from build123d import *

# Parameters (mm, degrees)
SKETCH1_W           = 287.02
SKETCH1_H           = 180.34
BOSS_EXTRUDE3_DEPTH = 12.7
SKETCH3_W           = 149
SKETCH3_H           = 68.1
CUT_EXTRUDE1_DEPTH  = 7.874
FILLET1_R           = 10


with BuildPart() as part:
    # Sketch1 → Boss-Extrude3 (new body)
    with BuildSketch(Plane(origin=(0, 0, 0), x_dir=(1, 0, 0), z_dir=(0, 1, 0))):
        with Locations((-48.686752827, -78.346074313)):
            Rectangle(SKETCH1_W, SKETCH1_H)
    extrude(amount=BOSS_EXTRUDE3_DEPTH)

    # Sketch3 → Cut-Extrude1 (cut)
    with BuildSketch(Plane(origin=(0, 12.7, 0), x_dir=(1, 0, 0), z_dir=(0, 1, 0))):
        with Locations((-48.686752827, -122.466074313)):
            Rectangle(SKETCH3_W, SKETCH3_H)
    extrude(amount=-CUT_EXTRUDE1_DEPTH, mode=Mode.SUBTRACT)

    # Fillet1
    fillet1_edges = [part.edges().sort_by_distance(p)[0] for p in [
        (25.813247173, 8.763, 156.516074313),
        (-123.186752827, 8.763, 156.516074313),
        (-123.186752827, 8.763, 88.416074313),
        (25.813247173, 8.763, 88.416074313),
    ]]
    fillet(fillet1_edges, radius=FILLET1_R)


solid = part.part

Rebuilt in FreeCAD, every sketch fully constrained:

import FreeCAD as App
import Part
import Sketcher
Q = App.Units.Quantity


def edges_at(feature, points):
    """Names of the edges that pass closest to the given points."""
    edges = feature.Shape.Edges
    near = lambda p: min(range(len(edges)), key=lambda i: edges[i].distToShape(Part.Vertex(*p))[0])
    return sorted({f"Edge{near(p) + 1}" for p in points})

doc = App.newDocument("Part")
body = doc.addObject("PartDesign::Body", "Body")

sketch1 = doc.addObject("Sketcher::SketchObject", "Sketch")
body.addObject(sketch1)
sketch1.AttachmentSupport = (doc.XZ_Plane, [""])
sketch1.MapMode = "FlatFace"
sketch1.addGeometry([
    Part.LineSegment(App.Vector(-192, -12, 0), App.Vector(-192, 169, 0)),
    Part.LineSegment(App.Vector(-192, 169, 0), App.Vector(95, 169, 0)),
    Part.LineSegment(App.Vector(95, 169, 0), App.Vector(95, -12, 0)),
    Part.LineSegment(App.Vector(95, -12, 0), App.Vector(-192, -12, 0)),
], False)
sketch1.addConstraint([
    Sketcher.Constraint("Coincident", 0, 2, 1, 1),
    Sketcher.Constraint("Coincident", 1, 2, 2, 1),
    Sketcher.Constraint("Coincident", 2, 2, 3, 1),
    Sketcher.Constraint("Coincident", 3, 2, 0, 1),
    Sketcher.Constraint("Vertical", 0),
    Sketcher.Constraint("Horizontal", 1),
    Sketcher.Constraint("Vertical", 2),
    Sketcher.Constraint("Horizontal", 3),
    Sketcher.Constraint("DistanceX", 1, 1, 1, 2, Q("11.3 in")),
    Sketcher.Constraint("DistanceY", 0, 1, 0, 2, Q("7.1 in")),
    Sketcher.Constraint("DistanceX", 0, 2, -1, 1, Q("192.196753 mm")),
    Sketcher.Constraint("DistanceY", -1, 1, 0, 2, Q("168.516074 mm")),
])
pad1 = doc.addObject("PartDesign::Pad", "Pad")
body.addObject(pad1)
pad1.Profile = sketch1
pad1.Length = Q("0.5 in")
pad1.Reversed = True

sketch2 = doc.addObject("Sketcher::SketchObject", "Sketch001")
body.addObject(sketch2)
sketch2.AttachmentSupport = (doc.XZ_Plane, [""])
sketch2.MapMode = "FlatFace"
sketch2.AttachmentOffset = App.Placement(App.Vector(0, 0, -0.5 * 25.4), App.Rotation())
sketch2.addGeometry([
    Part.LineSegment(App.Vector(-123, 88, 0), App.Vector(-123, 157, 0)),
    Part.LineSegment(App.Vector(-123, 157, 0), App.Vector(26, 157, 0)),
    Part.LineSegment(App.Vector(26, 157, 0), App.Vector(26, 88, 0)),
    Part.LineSegment(App.Vector(26, 88, 0), App.Vector(-123, 88, 0)),
], False)
sketch2.addConstraint([
    Sketcher.Constraint("Coincident", 0, 2, 1, 1),
    Sketcher.Constraint("Coincident", 1, 2, 2, 1),
    Sketcher.Constraint("Coincident", 2, 2, 3, 1),
    Sketcher.Constraint("Coincident", 3, 2, 0, 1),
    Sketcher.Constraint("Vertical", 0),
    Sketcher.Constraint("Horizontal", 1),
    Sketcher.Constraint("Vertical", 2),
    Sketcher.Constraint("Horizontal", 3),
    Sketcher.Constraint("DistanceX", 1, 1, 1, 2, Q("149 mm")),
    Sketcher.Constraint("DistanceY", 0, 1, 0, 2, Q("68.1 mm")),
    Sketcher.Constraint("DistanceX", 0, 2, -1, 1, Q("123.186753 mm")),
    Sketcher.Constraint("DistanceY", -1, 1, 0, 2, Q("156.516074 mm")),
])
pocket1 = doc.addObject("PartDesign::Pocket", "Pocket")
body.addObject(pocket1)
pocket1.Profile = sketch2
pocket1.Length = Q("0.31 in")
pocket1.Reversed = True
doc.recompute()

fillet = doc.addObject("PartDesign::Fillet", "Fillet")
body.addObject(fillet)
fillet.Base = (pocket1, edges_at(pocket1, [
    (25.813, 8.763, 156.516),
    (-123.187, 8.763, 156.516),
    (-123.187, 8.763, 88.416),
    (25.813, 8.763, 88.416),
]))
fillet.Radius = 10

doc.recompute()
